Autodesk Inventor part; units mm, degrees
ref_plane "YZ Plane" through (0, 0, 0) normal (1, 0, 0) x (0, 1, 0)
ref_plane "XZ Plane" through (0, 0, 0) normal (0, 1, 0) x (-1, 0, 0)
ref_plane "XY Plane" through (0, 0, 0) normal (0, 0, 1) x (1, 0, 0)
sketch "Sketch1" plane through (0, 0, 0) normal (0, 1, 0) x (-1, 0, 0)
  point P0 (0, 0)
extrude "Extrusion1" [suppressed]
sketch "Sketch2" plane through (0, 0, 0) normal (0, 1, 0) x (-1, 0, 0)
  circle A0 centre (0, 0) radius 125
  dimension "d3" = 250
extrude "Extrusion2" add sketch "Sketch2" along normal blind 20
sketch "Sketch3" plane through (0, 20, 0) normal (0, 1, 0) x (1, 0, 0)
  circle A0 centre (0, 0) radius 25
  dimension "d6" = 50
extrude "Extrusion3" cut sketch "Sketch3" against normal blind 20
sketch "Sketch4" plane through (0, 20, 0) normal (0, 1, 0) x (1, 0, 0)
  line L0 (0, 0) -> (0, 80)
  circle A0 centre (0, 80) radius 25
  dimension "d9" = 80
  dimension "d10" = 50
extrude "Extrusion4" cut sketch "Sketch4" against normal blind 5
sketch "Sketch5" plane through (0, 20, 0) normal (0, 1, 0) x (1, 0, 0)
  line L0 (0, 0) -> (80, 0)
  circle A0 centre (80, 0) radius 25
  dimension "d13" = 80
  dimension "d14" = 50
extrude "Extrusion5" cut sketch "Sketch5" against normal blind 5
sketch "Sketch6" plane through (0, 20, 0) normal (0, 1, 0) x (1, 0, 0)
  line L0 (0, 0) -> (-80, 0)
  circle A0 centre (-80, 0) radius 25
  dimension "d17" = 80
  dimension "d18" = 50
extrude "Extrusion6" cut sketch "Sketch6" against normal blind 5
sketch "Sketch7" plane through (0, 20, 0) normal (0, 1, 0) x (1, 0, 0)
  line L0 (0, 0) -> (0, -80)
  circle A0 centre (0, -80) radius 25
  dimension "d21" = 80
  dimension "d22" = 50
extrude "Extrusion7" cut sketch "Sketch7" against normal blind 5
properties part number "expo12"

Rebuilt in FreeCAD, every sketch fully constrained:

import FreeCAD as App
import Part
import Sketcher

V = App.Vector
Q = App.Units.Quantity

doc = App.newDocument("Part")
body = doc.addObject("PartDesign::Body", "Body")

# Sketch on XZ plane
sketch1 = body.newObject("Sketcher::SketchObject", "Sketch")
sketch1.AttachmentSupport = (doc.getObject("XZ_Plane"), [""])
sketch1.MapMode = "FlatFace"
sketch1.addGeometry(Part.Circle(V(0, 0, 0), V(0, 0, 1), 125), False)
sketch1.addConstraint([
    Sketcher.Constraint("Coincident", 0, 3, -1, 1),
    Sketcher.Constraint("Diameter", 0, Q("250 mm")),
])
pad1 = body.newObject("PartDesign::Pad", "Pad")
pad1.Profile = sketch1
pad1.Length = 20
pad1.Reversed = True

# Sketch on XZ plane
sketch2 = body.newObject("Sketcher::SketchObject", "Sketch001")
sketch2.AttachmentSupport = (doc.getObject("XZ_Plane"), [""])
sketch2.MapMode = "FlatFace"
sketch2.AttachmentOffset = App.Placement(V(0, 0, -20), App.Rotation())
sketch2.addGeometry(Part.Circle(V(0, 0, 0), V(0, 0, 1), 25), False)
sketch2.addConstraint([
    Sketcher.Constraint("Coincident", 0, 3, -1, 1),
    Sketcher.Constraint("Diameter", 0, Q("50 mm")),
])
pocket1 = body.newObject("PartDesign::Pocket", "Pocket")
pocket1.Profile = sketch2
pocket1.Length = 20
pocket1.Reversed = True

# Sketch on XZ plane
sketch3 = body.newObject("Sketcher::SketchObject", "Sketch002")
sketch3.AttachmentSupport = (doc.getObject("XZ_Plane"), [""])
sketch3.MapMode = "FlatFace"
sketch3.AttachmentOffset = App.Placement(V(0, 0, -20), App.Rotation())
sketch3.addGeometry(Part.Circle(V(0, -80, 0), V(0, 0, 1), 25), False)
sketch3.addConstraint([
    Sketcher.Constraint("PointOnObject", 0, 3, -2),
    Sketcher.Constraint("Diameter", 0, Q("50 mm")),
    Sketcher.Constraint("DistanceY", 0, 3, -1, 1, Q("80 mm")),
])
pocket2 = body.newObject("PartDesign::Pocket", "Pocket001")
pocket2.Profile = sketch3
pocket2.Length = 5
pocket2.Reversed = True

# Sketch on XZ plane
sketch4 = body.newObject("Sketcher::SketchObject", "Sketch003")
sketch4.AttachmentSupport = (doc.getObject("XZ_Plane"), [""])
sketch4.MapMode = "FlatFace"
sketch4.AttachmentOffset = App.Placement(V(0, 0, -20), App.Rotation())
sketch4.addGeometry(Part.Circle(V(80, 0, 0), V(0, 0, 1), 25), False)
sketch4.addConstraint([
    Sketcher.Constraint("PointOnObject", 0, 3, -1),
    Sketcher.Constraint("Diameter", 0, Q("50 mm")),
    Sketcher.Constraint("DistanceX", -1, 1, 0, 3, Q("80 mm")),
])
pocket3 = body.newObject("PartDesign::Pocket", "Pocket002")
pocket3.Profile = sketch4
pocket3.Length = 5
pocket3.Reversed = True

# Sketch on XZ plane
sketch5 = body.newObject("Sketcher::SketchObject", "Sketch004")
sketch5.AttachmentSupport = (doc.getObject("XZ_Plane"), [""])
sketch5.MapMode = "FlatFace"
sketch5.AttachmentOffset = App.Placement(V(0, 0, -20), App.Rotation())
sketch5.addGeometry(Part.Circle(V(-80, 0, 0), V(0, 0, 1), 25), False)
sketch5.addConstraint([
    Sketcher.Constraint("PointOnObject", 0, 3, -1),
    Sketcher.Constraint("Diameter", 0, Q("50 mm")),
    Sketcher.Constraint("DistanceX", 0, 3, -1, 1, Q("80 mm")),
])
pocket4 = body.newObject("PartDesign::Pocket", "Pocket003")
pocket4.Profile = sketch5
pocket4.Length = 5
pocket4.Reversed = True

# Sketch on XZ plane
sketch6 = body.newObject("Sketcher::SketchObject", "Sketch005")
sketch6.AttachmentSupport = (doc.getObject("XZ_Plane"), [""])
sketch6.MapMode = "FlatFace"
sketch6.AttachmentOffset = App.Placement(V(0, 0, -20), App.Rotation())
sketch6.addGeometry(Part.Circle(V(0, 80, 0), V(0, 0, 1), 25), False)
sketch6.addConstraint([
    Sketcher.Constraint("PointOnObject", 0, 3, -2),
    Sketcher.Constraint("Diameter", 0, Q("50 mm")),
    Sketcher.Constraint("DistanceY", -1, 1, 0, 3, Q("80 mm")),
])
pocket5 = body.newObject("PartDesign::Pocket", "Pocket004")
pocket5.Profile = sketch6
pocket5.Length = 5
pocket5.Reversed = True

doc.recompute()
